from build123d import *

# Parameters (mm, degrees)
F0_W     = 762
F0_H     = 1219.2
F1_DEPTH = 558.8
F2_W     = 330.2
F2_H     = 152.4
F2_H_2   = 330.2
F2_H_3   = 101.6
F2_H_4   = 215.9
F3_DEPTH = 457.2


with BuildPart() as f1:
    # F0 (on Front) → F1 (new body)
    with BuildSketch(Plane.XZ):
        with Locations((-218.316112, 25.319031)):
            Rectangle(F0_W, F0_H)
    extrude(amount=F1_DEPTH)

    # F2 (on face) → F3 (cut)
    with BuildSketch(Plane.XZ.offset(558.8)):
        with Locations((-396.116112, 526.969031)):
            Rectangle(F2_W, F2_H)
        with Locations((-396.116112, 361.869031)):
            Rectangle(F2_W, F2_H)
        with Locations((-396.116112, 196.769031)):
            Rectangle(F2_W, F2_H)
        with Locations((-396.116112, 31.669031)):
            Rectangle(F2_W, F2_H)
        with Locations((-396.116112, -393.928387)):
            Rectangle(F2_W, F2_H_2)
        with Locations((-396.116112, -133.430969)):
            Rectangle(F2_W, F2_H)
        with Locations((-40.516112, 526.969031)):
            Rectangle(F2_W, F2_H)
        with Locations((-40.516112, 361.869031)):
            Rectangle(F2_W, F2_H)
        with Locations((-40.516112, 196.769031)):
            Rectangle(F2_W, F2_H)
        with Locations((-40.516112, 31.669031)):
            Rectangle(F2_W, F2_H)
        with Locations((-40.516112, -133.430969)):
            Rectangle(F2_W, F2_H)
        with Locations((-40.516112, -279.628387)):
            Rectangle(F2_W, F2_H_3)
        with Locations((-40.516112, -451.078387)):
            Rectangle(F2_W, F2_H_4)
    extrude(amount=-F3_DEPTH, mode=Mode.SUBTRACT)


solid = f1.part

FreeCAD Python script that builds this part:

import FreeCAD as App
import Part
import Sketcher
from FreeCAD import Vector
Q = App.Units.Quantity

doc = App.newDocument("Part")
params = doc.addObject("Spreadsheet::Sheet", "Params")
for row, (alias, value) in enumerate([
    ("sketch1_width", "30 in"),
    ("sketch1_height", "48 in"),
    ("pad1_length", "22 in"),
    ("sketch2_width", "13 in"),
    ("sketch2_height", "6 in"),
    ("sketch2_height2", "4 in"),
    ("sketch2_height3", "8.5 in"),
    ("pocket1_length", "18 in"),
], start=1):
    params.set(f"A{row}", alias)
    params.set(f"B{row}", "=" + value)
    params.setAlias(f"B{row}", alias)

body = doc.addObject("PartDesign::Body", "Body")

sketch1 = body.newObject("Sketcher::SketchObject", "Sketch")
sketch1.AttachmentSupport = (doc.getObject("XZ_Plane"), [""])
sketch1.MapMode = "FlatFace"
sketch1.addGeometry([
    Part.LineSegment(Vector(-599, 635, 0), Vector(-599, -584, 0)),
    Part.LineSegment(Vector(-599, -584, 0), Vector(163, -584, 0)),
    Part.LineSegment(Vector(163, -584, 0), Vector(163, 635, 0)),
    Part.LineSegment(Vector(163, 635, 0), Vector(-599, 635, 0)),
], False)
sketch1.addConstraint([
    Sketcher.Constraint("Coincident", 0, 2, 1, 1),
    Sketcher.Constraint("Coincident", 1, 2, 2, 1),
    Sketcher.Constraint("Coincident", 2, 2, 3, 1),
    Sketcher.Constraint("Coincident", 3, 2, 0, 1),
    Sketcher.Constraint("Vertical", 0),
    Sketcher.Constraint("Horizontal", 1),
    Sketcher.Constraint("Vertical", 2),
    Sketcher.Constraint("Horizontal", 3),
    Sketcher.Constraint("DistanceX", 1, 1, 1, 2, Q("30 in")),
    Sketcher.Constraint("DistanceY", 0, 2, 0, 1, Q("48 in")),
    Sketcher.Constraint("DistanceX", 0, 2, -1, 1, 599.316112),
    Sketcher.Constraint("DistanceY", 0, 2, -1, 1, 584.280969),
])
sketch1.setExpression("Constraints[8]", "Params.sketch1_width")
sketch1.setExpression("Constraints[9]", "Params.sketch1_height")
pad1 = body.newObject("PartDesign::Pad", "Pad")
pad1.Profile = sketch1
pad1.setExpression("Length", "Params.pad1_length")

sketch2 = body.newObject("Sketcher::SketchObject", "Sketch001")
sketch2.AttachmentSupport = (doc.getObject("XZ_Plane"), [""])
sketch2.MapMode = "FlatFace"
sketch2.AttachmentOffset = App.Placement(Vector(0, 0, 22 * 25.4), App.Rotation())
sketch2.addGeometry([
    Part.LineSegment(Vector(-561, 603, 0), Vector(-561, 451, 0)),
    Part.LineSegment(Vector(-561, 451, 0), Vector(-231, 451, 0)),
    Part.LineSegment(Vector(-231, 451, 0), Vector(-231, 603, 0)),
    Part.LineSegment(Vector(-231, 603, 0), Vector(-561, 603, 0)),
    Part.LineSegment(Vector(-561, 438, 0), Vector(-561, 286, 0)),
    Part.LineSegment(Vector(-561, 286, 0), Vector(-231, 286, 0)),
    Part.LineSegment(Vector(-231, 286, 0), Vector(-231, 438, 0)),
    Part.LineSegment(Vector(-231, 438, 0), Vector(-561, 438, 0)),
    Part.LineSegment(Vector(-561, 273, 0), Vector(-561, 121, 0)),
    Part.LineSegment(Vector(-561, 121, 0), Vector(-231, 121, 0)),
    Part.LineSegment(Vector(-231, 121, 0), Vector(-231, 273, 0)),
    Part.LineSegment(Vector(-231, 273, 0), Vector(-561, 273, 0)),
    Part.LineSegment(Vector(-561, 108, 0), Vector(-561, -45, 0)),
    Part.LineSegment(Vector(-561, -45, 0), Vector(-231, -45, 0)),
    Part.LineSegment(Vector(-231, -45, 0), Vector(-231, 108, 0)),
    Part.LineSegment(Vector(-231, 108, 0), Vector(-561, 108, 0)),
    Part.LineSegment(Vector(-561, -229, 0), Vector(-561, -559, 0)),
    Part.LineSegment(Vector(-561, -559, 0), Vector(-231, -559, 0)),
    Part.LineSegment(Vector(-231, -559, 0), Vector(-231, -229, 0)),
    Part.LineSegment(Vector(-231, -229, 0), Vector(-561, -229, 0)),
    Part.LineSegment(Vector(-561, -57, 0), Vector(-561, -210, 0)),
    Part.LineSegment(Vector(-561, -210, 0), Vector(-231, -210, 0)),
    Part.LineSegment(Vector(-231, -210, 0), Vector(-231, -57, 0)),
    Part.LineSegment(Vector(-231, -57, 0), Vector(-561, -57, 0)),
    Part.LineSegment(Vector(-206, 603, 0), Vector(-206, 451, 0)),
    Part.LineSegment(Vector(-206, 451, 0), Vector(125, 451, 0)),
    Part.LineSegment(Vector(125, 451, 0), Vector(125, 603, 0)),
    Part.LineSegment(Vector(125, 603, 0), Vector(-206, 603, 0)),
    Part.LineSegment(Vector(-206, 438, 0), Vector(-206, 286, 0)),
    Part.LineSegment(Vector(-206, 286, 0), Vector(125, 286, 0)),
    Part.LineSegment(Vector(125, 286, 0), Vector(125, 438, 0)),
    Part.LineSegment(Vector(125, 438, 0), Vector(-206, 438, 0)),
    Part.LineSegment(Vector(-206, 273, 0), Vector(-206, 121, 0)),
    Part.LineSegment(Vector(-206, 121, 0), Vector(125, 121, 0)),
    Part.LineSegment(Vector(125, 121, 0), Vector(125, 273, 0)),
    Part.LineSegment(Vector(125, 273, 0), Vector(-206, 273, 0)),
    Part.LineSegment(Vector(-206, 108, 0), Vector(-206, -45, 0)),
    Part.LineSegment(Vector(-206, -45, 0), Vector(125, -45, 0)),
    Part.LineSegment(Vector(125, -45, 0), Vector(125, 108, 0)),
    Part.LineSegment(Vector(125, 108, 0), Vector(-206, 108, 0)),
    Part.LineSegment(Vector(-206, -57, 0), Vector(-206, -210, 0)),
    Part.LineSegment(Vector(-206, -210, 0), Vector(125, -210, 0)),
    Part.LineSegment(Vector(125, -210, 0), Vector(125, -57, 0)),
    Part.LineSegment(Vector(125, -57, 0), Vector(-206, -57, 0)),
    Part.LineSegment(Vector(-206, -229, 0), Vector(-206, -330, 0)),
    Part.LineSegment(Vector(-206, -330, 0), Vector(125, -330, 0)),
    Part.LineSegment(Vector(125, -330, 0), Vector(125, -229, 0)),
    Part.LineSegment(Vector(125, -229, 0), Vector(-206, -229, 0)),
    Part.LineSegment(Vector(-206, -343, 0), Vector(-206, -559, 0)),
    Part.LineSegment(Vector(-206, -559, 0), Vector(125, -559, 0)),
    Part.LineSegment(Vector(125, -559, 0), Vector(125, -343, 0)),
    Part.LineSegment(Vector(125, -343, 0), Vector(-206, -343, 0)),
], False)
sketch2.addConstraint([
    Sketcher.Constraint("Coincident", 0, 2, 1, 1),
    Sketcher.Constraint("Coincident", 1, 2, 2, 1),
    Sketcher.Constraint("Coincident", 2, 2, 3, 1),
    Sketcher.Constraint("Coincident", 3, 2, 0, 1),
    Sketcher.Constraint("Coincident", 4, 2, 5, 1),
    Sketcher.Constraint("Coincident", 5, 2, 6, 1),
    Sketcher.Constraint("Coincident", 6, 2, 7, 1),
    Sketcher.Constraint("Coincident", 7, 2, 4, 1),
    Sketcher.Constraint("Coincident", 8, 2, 9, 1),
    Sketcher.Constraint("Coincident", 9, 2, 10, 1),
    Sketcher.Constraint("Coincident", 10, 2, 11, 1),
    Sketcher.Constraint("Coincident", 11, 2, 8, 1),
    Sketcher.Constraint("Coincident", 12, 2, 13, 1),
    Sketcher.Constraint("Coincident", 13, 2, 14, 1),
    Sketcher.Constraint("Coincident", 14, 2, 15, 1),
    Sketcher.Constraint("Coincident", 15, 2, 12, 1),
    Sketcher.Constraint("Coincident", 16, 2, 17, 1),
    Sketcher.Constraint("Coincident", 17, 2, 18, 1),
    Sketcher.Constraint("Coincident", 18, 2, 19, 1),
    Sketcher.Constraint("Coincident", 19, 2, 16, 1),
    Sketcher.Constraint("Coincident", 20, 2, 21, 1),
    Sketcher.Constraint("Coincident", 21, 2, 22, 1),
    Sketcher.Constraint("Coincident", 22, 2, 23, 1),
    Sketcher.Constraint("Coincident", 23, 2, 20, 1),
    Sketcher.Constraint("Coincident", 24, 2, 25, 1),
    Sketcher.Constraint("Coincident", 25, 2, 26, 1),
    Sketcher.Constraint("Coincident", 26, 2, 27, 1),
    Sketcher.Constraint("Coincident", 27, 2, 24, 1),
    Sketcher.Constraint("Coincident", 28, 2, 29, 1),
    Sketcher.Constraint("Coincident", 29, 2, 30, 1),
    Sketcher.Constraint("Coincident", 30, 2, 31, 1),
    Sketcher.Constraint("Coincident", 31, 2, 28, 1),
    Sketcher.Constraint("Coincident", 32, 2, 33, 1),
    Sketcher.Constraint("Coincident", 33, 2, 34, 1),
    Sketcher.Constraint("Coincident", 34, 2, 35, 1),
    Sketcher.Constraint("Coincident", 35, 2, 32, 1),
    Sketcher.Constraint("Coincident", 36, 2, 37, 1),
    Sketcher.Constraint("Coincident", 37, 2, 38, 1),
    Sketcher.Constraint("Coincident", 38, 2, 39, 1),
    Sketcher.Constraint("Coincident", 39, 2, 36, 1),
    Sketcher.Constraint("Coincident", 40, 2, 41, 1),
    Sketcher.Constraint("Coincident", 41, 2, 42, 1),
    Sketcher.Constraint("Coincident", 42, 2, 43, 1),
    Sketcher.Constraint("Coincident", 43, 2, 40, 1),
    Sketcher.Constraint("Coincident", 44, 2, 45, 1),
    Sketcher.Constraint("Coincident", 45, 2, 46, 1),
    Sketcher.Constraint("Coincident", 46, 2, 47, 1),
    Sketcher.Constraint("Coincident", 47, 2, 44, 1),
    Sketcher.Constraint("Coincident", 48, 2, 49, 1),
    Sketcher.Constraint("Coincident", 49, 2, 50, 1),
    Sketcher.Constraint("Coincident", 50, 2, 51, 1),
    Sketcher.Constraint("Coincident", 51, 2, 48, 1),
    Sketcher.Constraint("Vertical", 0),
    Sketcher.Constraint("Horizontal", 1),
    Sketcher.Constraint("Vertical", 2),
    Sketcher.Constraint("Horizontal", 3),
    Sketcher.Constraint("Vertical", 4),
    Sketcher.Constraint("Horizontal", 5),
    Sketcher.Constraint("Vertical", 6),
    Sketcher.Constraint("Horizontal", 7),
    Sketcher.Constraint("Vertical", 8),
    Sketcher.Constraint("Horizontal", 9),
    Sketcher.Constraint("Vertical", 10),
    Sketcher.Constraint("Horizontal", 11),
    Sketcher.Constraint("Vertical", 12),
    Sketcher.Constraint("Horizontal", 13),
    Sketcher.Constraint("Vertical", 14),
    Sketcher.Constraint("Horizontal", 15),
    Sketcher.Constraint("Vertical", 16),
    Sketcher.Constraint("Horizontal", 17),
    Sketcher.Constraint("Vertical", 18),
    Sketcher.Constraint("Horizontal", 19),
    Sketcher.Constraint("Vertical", 20),
    Sketcher.Constraint("Horizontal", 21),
    Sketcher.Constraint("Vertical", 22),
    Sketcher.Constraint("Horizontal", 23),
    Sketcher.Constraint("Vertical", 24),
    Sketcher.Constraint("Horizontal", 25),
    Sketcher.Constraint("Vertical", 26),
    Sketcher.Constraint("Horizontal", 27),
    Sketcher.Constraint("Vertical", 28),
    Sketcher.Constraint("Horizontal", 29),
    Sketcher.Constraint("Vertical", 30),
    Sketcher.Constraint("Horizontal", 31),
    Sketcher.Constraint("Vertical", 32),
    Sketcher.Constraint("Horizontal", 33),
    Sketcher.Constraint("Vertical", 34),
    Sketcher.Constraint("Horizontal", 35),
    Sketcher.Constraint("Vertical", 36),
    Sketcher.Constraint("Horizontal", 37),
    Sketcher.Constraint("Vertical", 38),
    Sketcher.Constraint("Horizontal", 39),
    Sketcher.Constraint("Vertical", 40),
    Sketcher.Constraint("Horizontal", 41),
    Sketcher.Constraint("Vertical", 42),
    Sketcher.Constraint("Horizontal", 43),
    Sketcher.Constraint("Vertical", 44),
    Sketcher.Constraint("Horizontal", 45),
    Sketcher.Constraint("Vertical", 46),
    Sketcher.Constraint("Horizontal", 47),
    Sketcher.Constraint("Vertical", 48),
    Sketcher.Constraint("Horizontal", 49),
    Sketcher.Constraint("Vertical", 50),
    Sketcher.Constraint("Horizontal", 51),
    Sketcher.Constraint("Horizontal", 1, 2, 24, 2),
    Sketcher.Constraint("Horizontal", 3, 2, 26, 2),
    Sketcher.Constraint("Horizontal", 5, 2, 28, 2),
    Sketcher.Constraint("Horizontal", 7, 2, 30, 2),
    Sketcher.Constraint("Horizontal", 9, 2, 32, 2),
    Sketcher.Constraint("Horizontal", 11, 2, 34, 2),
    Sketcher.Constraint("Horizontal", 13, 2, 36, 2),
    Sketcher.Constraint("Horizontal", 15, 2, 38, 2),
    Sketcher.Constraint("Horizontal", 21, 2, 40, 2),
    Sketcher.Constraint("Horizontal", 23, 2, 42, 2),
    Sketcher.Constraint("Horizontal", 19, 2, 46, 2),
    Sketcher.Constraint("Horizontal", 17, 2, 48, 2),
    Sketcher.Constraint("Vertical", 3, 2, 4, 2),
    Sketcher.Constraint("Vertical", 2, 2, 5, 2),
    Sketcher.Constraint("Vertical", 7, 2, 8, 2),
    Sketcher.Constraint("Vertical", 6, 2, 9, 2),
    Sketcher.Constraint("Vertical", 11, 2, 12, 2),
    Sketcher.Constraint("Vertical", 10, 2, 13, 2),
    Sketcher.Constraint("Vertical", 15, 2, 16, 2),
    Sketcher.Constraint("Vertical", 14, 2, 17, 2),
    Sketcher.Constraint("Vertical", 19, 2, 20, 2),
    Sketcher.Constraint("Vertical", 18, 2, 21, 2),
    Sketcher.Constraint("Vertical", 27, 2, 28, 2),
    Sketcher.Constraint("Vertical", 26, 2, 29, 2),
    Sketcher.Constraint("Vertical", 31, 2, 32, 2),
    Sketcher.Constraint("Vertical", 30, 2, 33, 2),
    Sketcher.Constraint("Vertical", 35, 2, 36, 2),
    Sketcher.Constraint("Vertical", 34, 2, 37, 2),
    Sketcher.Constraint("Vertical", 39, 2, 40, 2),
    Sketcher.Constraint("Vertical", 38, 2, 41, 2),
    Sketcher.Constraint("Vertical", 43, 2, 44, 2),
    Sketcher.Constraint("Vertical", 42, 2, 45, 2),
    Sketcher.Constraint("Vertical", 47, 2, 48, 2),
    Sketcher.Constraint("Vertical", 46, 2, 49, 2),
    Sketcher.Constraint("Equal", 23, 25),
    Sketcher.Constraint("Equal", 2, 4),
    Sketcher.Constraint("Equal", 6, 8),
    Sketcher.Constraint("Equal", 10, 12),
    Sketcher.Constraint("Equal", 51, 16),
    Sketcher.Constraint("Equal", 14, 20),
    Sketcher.Constraint("DistanceX", 1, 1, 1, 2, Q("13 in")),
    Sketcher.Constraint("DistanceY", 0, 2, 0, 1, Q("6 in")),
    Sketcher.Constraint("DistanceY", 44, 2, 44, 1, Q("4 in")),
    Sketcher.Constraint("DistanceY", 48, 2, 48, 1, Q("8.5 in")),
    Sketcher.Constraint("DistanceY", 8, 2, 0, 2, Q("13 in")),
    Sketcher.Constraint("DistanceY", 12, 2, 4, 2, Q("13 in")),
    Sketcher.Constraint("DistanceY", 20, 2, 8, 2, Q("13 in")),
    Sketcher.Constraint("DistanceX", 1, 2, 24, 2, Q("1 in")),
    Sketcher.Constraint("DistanceY", 4, 2, 0, 2, Q("6.5 in")),
    Sketcher.Constraint("DistanceX", 0, 2, -1, 1, 561.216112),
    Sketcher.Constraint("DistanceY", -1, 1, 0, 2, 450.769031),
    Sketcher.Constraint("DistanceY", 16, 2, 15, 2, 666.897418),
])
sketch2.setExpression("Constraints[144]", "Params.sketch2_width")
sketch2.setExpression("Constraints[145]", "Params.sketch2_height")
sketch2.setExpression("Constraints[146]", "Params.sketch2_height2")
sketch2.setExpression("Constraints[147]", "Params.sketch2_height3")
pocket1 = body.newObject("PartDesign::Pocket", "Pocket")
pocket1.Profile = sketch2
pocket1.setExpression("Length", "Params.pocket1_length")

doc.recompute()
